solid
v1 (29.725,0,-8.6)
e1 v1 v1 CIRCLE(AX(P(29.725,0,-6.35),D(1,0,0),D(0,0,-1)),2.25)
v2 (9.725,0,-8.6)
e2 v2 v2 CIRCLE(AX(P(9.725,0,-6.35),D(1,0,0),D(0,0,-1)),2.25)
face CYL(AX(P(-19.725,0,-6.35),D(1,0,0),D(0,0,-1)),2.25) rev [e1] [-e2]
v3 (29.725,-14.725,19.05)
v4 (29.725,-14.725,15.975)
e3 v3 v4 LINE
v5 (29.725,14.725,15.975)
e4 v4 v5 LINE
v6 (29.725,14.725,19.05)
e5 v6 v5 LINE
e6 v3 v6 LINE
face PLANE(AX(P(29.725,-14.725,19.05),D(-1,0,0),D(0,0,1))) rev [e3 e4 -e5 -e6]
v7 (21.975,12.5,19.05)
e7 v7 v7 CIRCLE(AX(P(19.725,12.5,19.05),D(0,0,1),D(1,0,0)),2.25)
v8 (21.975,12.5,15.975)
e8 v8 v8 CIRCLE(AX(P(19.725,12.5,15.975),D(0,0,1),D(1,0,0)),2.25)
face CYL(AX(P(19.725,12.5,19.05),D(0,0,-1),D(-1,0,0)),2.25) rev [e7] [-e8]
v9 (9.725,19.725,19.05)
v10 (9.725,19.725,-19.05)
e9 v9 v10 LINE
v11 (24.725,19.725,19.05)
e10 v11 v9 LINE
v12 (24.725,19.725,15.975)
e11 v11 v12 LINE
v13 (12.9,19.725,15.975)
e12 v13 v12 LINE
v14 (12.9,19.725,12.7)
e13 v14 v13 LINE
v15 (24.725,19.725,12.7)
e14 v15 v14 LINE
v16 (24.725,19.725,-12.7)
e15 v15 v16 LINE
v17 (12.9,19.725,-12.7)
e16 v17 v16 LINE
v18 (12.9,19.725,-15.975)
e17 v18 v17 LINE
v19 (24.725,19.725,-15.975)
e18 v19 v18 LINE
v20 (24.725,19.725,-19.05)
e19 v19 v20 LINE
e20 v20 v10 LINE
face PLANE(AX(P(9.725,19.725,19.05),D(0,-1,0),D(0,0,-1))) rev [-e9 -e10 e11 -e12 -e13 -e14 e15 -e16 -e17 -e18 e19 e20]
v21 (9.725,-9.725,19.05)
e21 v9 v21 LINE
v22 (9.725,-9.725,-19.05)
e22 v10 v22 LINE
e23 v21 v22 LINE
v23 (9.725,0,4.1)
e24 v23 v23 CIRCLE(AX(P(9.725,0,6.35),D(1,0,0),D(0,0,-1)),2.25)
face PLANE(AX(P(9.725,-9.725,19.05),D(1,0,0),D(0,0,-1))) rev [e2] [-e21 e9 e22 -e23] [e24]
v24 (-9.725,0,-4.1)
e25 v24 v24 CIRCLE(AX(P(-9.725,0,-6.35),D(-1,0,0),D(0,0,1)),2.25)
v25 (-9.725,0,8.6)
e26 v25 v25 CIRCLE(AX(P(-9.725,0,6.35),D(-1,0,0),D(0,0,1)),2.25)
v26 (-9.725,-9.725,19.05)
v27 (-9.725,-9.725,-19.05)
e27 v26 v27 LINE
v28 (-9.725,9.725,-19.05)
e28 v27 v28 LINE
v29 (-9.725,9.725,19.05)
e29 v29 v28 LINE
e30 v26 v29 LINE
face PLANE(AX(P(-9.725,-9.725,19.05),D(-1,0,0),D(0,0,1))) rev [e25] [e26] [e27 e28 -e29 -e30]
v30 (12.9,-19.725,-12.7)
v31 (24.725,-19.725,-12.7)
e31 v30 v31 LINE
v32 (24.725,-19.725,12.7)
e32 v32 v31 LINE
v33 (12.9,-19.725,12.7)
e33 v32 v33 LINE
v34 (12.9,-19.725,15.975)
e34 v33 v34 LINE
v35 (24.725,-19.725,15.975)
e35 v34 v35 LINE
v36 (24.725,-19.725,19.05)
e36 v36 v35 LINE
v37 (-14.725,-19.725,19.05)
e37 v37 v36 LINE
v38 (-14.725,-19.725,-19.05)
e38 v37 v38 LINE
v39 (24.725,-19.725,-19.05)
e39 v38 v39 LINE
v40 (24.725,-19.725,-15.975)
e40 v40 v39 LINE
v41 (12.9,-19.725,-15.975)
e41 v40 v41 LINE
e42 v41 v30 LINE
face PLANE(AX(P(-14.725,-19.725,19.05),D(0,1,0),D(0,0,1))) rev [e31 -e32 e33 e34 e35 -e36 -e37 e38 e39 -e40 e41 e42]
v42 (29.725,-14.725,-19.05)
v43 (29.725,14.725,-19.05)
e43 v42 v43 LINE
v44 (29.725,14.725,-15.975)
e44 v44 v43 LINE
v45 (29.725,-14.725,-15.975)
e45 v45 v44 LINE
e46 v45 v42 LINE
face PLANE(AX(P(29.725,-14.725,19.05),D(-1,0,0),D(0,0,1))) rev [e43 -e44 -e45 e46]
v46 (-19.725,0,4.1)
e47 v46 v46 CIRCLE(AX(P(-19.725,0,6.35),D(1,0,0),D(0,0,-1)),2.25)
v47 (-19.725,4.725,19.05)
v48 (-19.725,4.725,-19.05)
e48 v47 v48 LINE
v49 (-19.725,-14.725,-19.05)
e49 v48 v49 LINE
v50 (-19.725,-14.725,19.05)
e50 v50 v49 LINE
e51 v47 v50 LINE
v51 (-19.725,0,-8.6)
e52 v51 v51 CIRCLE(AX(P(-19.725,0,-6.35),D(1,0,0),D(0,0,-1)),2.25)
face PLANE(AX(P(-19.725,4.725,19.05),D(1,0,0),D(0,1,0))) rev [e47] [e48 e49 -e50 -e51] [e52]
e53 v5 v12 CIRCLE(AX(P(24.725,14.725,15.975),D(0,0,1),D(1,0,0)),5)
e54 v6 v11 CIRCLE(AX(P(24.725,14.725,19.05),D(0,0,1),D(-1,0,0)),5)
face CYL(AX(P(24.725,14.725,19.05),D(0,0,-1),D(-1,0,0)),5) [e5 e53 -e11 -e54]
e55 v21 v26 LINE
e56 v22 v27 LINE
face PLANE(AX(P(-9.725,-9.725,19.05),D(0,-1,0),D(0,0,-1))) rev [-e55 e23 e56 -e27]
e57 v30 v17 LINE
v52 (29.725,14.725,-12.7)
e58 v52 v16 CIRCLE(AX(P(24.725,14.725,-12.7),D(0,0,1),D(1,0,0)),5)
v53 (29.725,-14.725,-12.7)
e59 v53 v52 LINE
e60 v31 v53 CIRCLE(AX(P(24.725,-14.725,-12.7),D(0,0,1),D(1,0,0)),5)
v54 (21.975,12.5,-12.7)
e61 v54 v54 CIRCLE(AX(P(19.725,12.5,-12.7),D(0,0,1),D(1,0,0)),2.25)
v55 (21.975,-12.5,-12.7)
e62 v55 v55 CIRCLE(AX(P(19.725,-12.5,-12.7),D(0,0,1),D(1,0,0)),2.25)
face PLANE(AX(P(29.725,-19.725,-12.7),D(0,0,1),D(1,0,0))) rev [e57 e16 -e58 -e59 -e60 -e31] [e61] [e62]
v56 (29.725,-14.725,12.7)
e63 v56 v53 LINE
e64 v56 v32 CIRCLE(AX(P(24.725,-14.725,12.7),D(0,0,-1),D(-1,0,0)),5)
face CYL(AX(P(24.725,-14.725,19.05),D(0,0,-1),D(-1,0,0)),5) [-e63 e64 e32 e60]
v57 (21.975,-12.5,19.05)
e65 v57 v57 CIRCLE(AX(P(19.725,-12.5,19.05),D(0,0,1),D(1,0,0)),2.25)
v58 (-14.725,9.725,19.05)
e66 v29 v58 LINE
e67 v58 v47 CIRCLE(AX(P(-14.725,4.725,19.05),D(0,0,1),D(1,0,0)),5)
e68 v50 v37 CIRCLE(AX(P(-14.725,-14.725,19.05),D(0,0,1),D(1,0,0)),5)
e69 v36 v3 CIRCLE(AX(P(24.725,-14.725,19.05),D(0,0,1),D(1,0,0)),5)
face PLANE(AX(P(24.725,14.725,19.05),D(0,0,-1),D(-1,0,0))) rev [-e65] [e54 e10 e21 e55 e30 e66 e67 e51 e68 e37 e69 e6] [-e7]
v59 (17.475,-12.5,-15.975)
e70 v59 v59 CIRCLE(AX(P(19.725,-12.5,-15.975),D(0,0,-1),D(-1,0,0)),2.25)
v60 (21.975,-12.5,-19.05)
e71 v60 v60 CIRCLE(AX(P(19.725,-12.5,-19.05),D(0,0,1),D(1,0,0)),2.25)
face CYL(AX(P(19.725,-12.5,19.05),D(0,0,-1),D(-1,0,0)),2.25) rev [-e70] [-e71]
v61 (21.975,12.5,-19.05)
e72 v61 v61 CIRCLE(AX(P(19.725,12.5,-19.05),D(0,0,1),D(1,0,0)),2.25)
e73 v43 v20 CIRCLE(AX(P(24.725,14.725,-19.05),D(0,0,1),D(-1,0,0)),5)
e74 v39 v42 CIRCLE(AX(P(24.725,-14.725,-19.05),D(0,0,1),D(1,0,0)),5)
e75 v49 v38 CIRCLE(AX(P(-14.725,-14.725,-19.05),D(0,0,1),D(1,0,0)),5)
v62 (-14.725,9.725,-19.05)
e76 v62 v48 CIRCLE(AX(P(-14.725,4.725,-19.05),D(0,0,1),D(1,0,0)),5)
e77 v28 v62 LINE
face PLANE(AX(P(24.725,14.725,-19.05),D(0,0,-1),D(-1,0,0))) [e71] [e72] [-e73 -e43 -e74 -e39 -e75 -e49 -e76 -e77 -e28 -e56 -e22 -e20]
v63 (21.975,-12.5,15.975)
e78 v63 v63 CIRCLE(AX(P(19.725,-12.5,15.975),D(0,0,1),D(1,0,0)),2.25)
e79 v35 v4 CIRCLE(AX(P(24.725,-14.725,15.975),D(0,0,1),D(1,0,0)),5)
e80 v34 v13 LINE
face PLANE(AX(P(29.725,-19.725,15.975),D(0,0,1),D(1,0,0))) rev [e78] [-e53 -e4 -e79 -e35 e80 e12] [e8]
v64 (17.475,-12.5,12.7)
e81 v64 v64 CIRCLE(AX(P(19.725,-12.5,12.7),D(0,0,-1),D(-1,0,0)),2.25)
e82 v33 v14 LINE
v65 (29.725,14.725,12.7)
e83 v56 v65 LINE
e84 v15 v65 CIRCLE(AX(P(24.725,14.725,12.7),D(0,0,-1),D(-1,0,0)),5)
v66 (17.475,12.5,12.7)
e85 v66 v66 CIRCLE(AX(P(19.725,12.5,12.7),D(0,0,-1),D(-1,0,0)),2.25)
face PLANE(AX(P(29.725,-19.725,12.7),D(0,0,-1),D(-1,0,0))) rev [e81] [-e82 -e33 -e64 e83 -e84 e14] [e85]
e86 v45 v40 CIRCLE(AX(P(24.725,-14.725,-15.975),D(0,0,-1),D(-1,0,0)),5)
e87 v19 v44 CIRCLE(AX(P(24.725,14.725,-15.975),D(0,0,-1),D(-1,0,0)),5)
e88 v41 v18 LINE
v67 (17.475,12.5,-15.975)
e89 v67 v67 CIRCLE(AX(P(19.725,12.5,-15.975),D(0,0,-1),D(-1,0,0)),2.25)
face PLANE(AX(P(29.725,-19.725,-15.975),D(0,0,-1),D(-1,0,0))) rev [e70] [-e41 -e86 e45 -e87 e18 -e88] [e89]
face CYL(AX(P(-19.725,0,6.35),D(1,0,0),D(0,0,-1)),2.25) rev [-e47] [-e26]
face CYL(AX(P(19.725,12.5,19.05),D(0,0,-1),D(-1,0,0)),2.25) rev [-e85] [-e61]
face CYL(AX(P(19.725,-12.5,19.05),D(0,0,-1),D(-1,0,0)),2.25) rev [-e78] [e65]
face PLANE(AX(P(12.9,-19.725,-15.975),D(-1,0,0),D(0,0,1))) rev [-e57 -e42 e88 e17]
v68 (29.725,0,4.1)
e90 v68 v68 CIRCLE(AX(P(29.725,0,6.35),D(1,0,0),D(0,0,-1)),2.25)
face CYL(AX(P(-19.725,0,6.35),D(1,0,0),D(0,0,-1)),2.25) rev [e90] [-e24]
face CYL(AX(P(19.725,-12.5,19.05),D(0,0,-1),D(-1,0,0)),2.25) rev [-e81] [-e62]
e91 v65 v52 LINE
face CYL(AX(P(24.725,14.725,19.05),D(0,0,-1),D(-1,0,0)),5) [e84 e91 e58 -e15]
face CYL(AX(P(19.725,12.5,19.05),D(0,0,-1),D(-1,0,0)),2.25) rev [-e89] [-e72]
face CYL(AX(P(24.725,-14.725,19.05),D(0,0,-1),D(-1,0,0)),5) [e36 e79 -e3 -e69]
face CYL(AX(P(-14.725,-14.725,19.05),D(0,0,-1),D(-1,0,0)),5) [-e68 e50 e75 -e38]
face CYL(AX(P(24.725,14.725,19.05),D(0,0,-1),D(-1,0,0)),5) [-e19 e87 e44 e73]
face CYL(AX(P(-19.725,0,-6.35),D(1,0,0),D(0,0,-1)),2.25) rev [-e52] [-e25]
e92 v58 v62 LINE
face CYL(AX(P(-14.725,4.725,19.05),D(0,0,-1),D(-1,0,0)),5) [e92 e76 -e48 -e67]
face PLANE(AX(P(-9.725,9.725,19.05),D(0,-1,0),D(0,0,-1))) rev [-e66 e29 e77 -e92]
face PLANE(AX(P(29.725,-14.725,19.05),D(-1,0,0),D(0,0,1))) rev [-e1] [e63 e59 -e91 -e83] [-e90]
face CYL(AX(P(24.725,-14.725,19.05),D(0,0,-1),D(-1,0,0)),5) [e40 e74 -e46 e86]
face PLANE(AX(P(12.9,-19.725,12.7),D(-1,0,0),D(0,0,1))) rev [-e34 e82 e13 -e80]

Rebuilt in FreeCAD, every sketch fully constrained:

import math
import FreeCAD as App
import Part
import Sketcher

V = App.Vector


def add_polygon(sketch, points):
    """Adds a closed chain of lines whose ends are joined by coincident constraints."""
    first, n = sketch.GeometryCount, len(points)
    for a, b in zip(points, points[1:] + points[:1]):
        sketch.addGeometry(Part.LineSegment(App.Vector(*a, 0), App.Vector(*b, 0)), False)
    for i in range(n):
        sketch.addConstraint(Sketcher.Constraint("Coincident", first + i, 2, first + (i + 1) % n, 1))

doc = App.newDocument("Part")
body = doc.addObject("PartDesign::Body", "Body")

# Sketch on XY plane
sketch1 = body.newObject("Sketcher::SketchObject", "Sketch")
sketch1.AttachmentSupport = (doc.getObject("XY_Plane"), [""])
sketch1.MapMode = "FlatFace"
sketch1.addGeometry([
    Part.LineSegment(V(-9.725, 9.725, 0), V(-14.725, 9.725, 0)),  # 0
    Part.ArcOfCircle(Part.Circle(V(-14.725, 4.725, 0), V(0, 0, 1), 5), math.radians(90), math.radians(180)),  # 1
    Part.LineSegment(V(-19.725, 4.725, 0), V(-19.725, -14.725, 0)),  # 2
    Part.ArcOfCircle(Part.Circle(V(-14.725, -14.725, 0), V(0, 0, 1), 5), math.radians(180), math.radians(270)),  # 3
    Part.LineSegment(V(-14.725, -19.725, 0), V(24.725, -19.725, 0)),  # 4
    Part.ArcOfCircle(Part.Circle(V(24.725, -14.725, 0), V(0, 0, 1), 5), math.radians(-90), math.radians(0)),  # 5
    Part.LineSegment(V(29.725, -14.725, 0), V(29.725, 14.725, 0)),  # 6
    Part.ArcOfCircle(Part.Circle(V(24.725, 14.725, 0), V(0, 0, 1), 5), math.radians(0), math.radians(90)),  # 7
    Part.LineSegment(V(24.725, 19.725, 0), V(9.725, 19.725, 0)),  # 8
    Part.LineSegment(V(9.725, 19.725, 0), V(9.725, -9.725, 0)),  # 9
    Part.LineSegment(V(9.725, -9.725, 0), V(-9.725, -9.725, 0)),  # 10
    Part.LineSegment(V(-9.725, -9.725, 0), V(-9.725, 9.725, 0)),  # 11
    Part.Circle(V(19.725, -12.5, 0), V(0, 0, 1), 2.25),  # 12
    Part.Circle(V(19.725, 12.5, 0), V(0, 0, 1), 2.25),  # 13
], False)
sketch1.addConstraint([
    Sketcher.Constraint("Tangent", 0, 2, 1, 1),
    Sketcher.Constraint("Tangent", 1, 2, 2, 1),
    Sketcher.Constraint("Tangent", 2, 2, 3, 1),
    Sketcher.Constraint("Tangent", 3, 2, 4, 1),
    Sketcher.Constraint("Tangent", 4, 2, 5, 1),
    Sketcher.Constraint("Tangent", 5, 2, 6, 1),
    Sketcher.Constraint("Tangent", 6, 2, 7, 1),
    Sketcher.Constraint("Tangent", 7, 2, 8, 1),
    Sketcher.Constraint("Coincident", 8, 2, 9, 1),
    Sketcher.Constraint("Coincident", 9, 2, 10, 1),
    Sketcher.Constraint("Coincident", 10, 2, 11, 1),
    Sketcher.Constraint("Coincident", 11, 2, 0, 1),
    Sketcher.Constraint("Horizontal", 0),
    Sketcher.Constraint("Vertical", 2),
    Sketcher.Constraint("Horizontal", 4),
    Sketcher.Constraint("Vertical", 6),
    Sketcher.Constraint("Horizontal", 8),
    Sketcher.Constraint("Vertical", 9),
    Sketcher.Constraint("Horizontal", 10),
    Sketcher.Constraint("Vertical", 11),
    Sketcher.Constraint("Equal", 1, 3),
    Sketcher.Constraint("Equal", 3, 5),
    Sketcher.Constraint("Equal", 5, 7),
    Sketcher.Constraint("Equal", 12, 13),
    Sketcher.Constraint("Symmetric", 9, 2, 11, 2, -1, 1),
    Sketcher.Constraint("Symmetric", 12, 3, 13, 3, -1),
    Sketcher.Constraint("Equal", 10, 2),
    Sketcher.Constraint("Equal", 6, 9),
    Sketcher.Constraint("Radius", 1, 5.0),
    Sketcher.Constraint("Diameter", 12, 4.5),
    Sketcher.Constraint("DistanceX", 0, 2, 0, 1, 5.0),
    Sketcher.Constraint("DistanceX", 8, 2, 8, 1, 15.0),
    Sketcher.Constraint("DistanceY", 1, 3, 7, 3, 10.0),
    Sketcher.Constraint("DistanceX", 12, 3, 5, 3, 5.0),
    Sketcher.Constraint("DistanceY", 12, 3, 13, 3, 25.0),
    Sketcher.Constraint("DistanceX", 4, 1, 4, 2, 39.45),
])
pad1 = body.newObject("PartDesign::Pad", "Pad")
pad1.Profile = sketch1
pad1.Length = 38.1
pad1.Midplane = True

# Sketch on XZ plane
sketch2 = body.newObject("Sketcher::SketchObject", "Sketch001")
sketch2.AttachmentSupport = (doc.getObject("XZ_Plane"), [""])
sketch2.MapMode = "FlatFace"
add_polygon(sketch2, [(12.9, -15.975), (12.9, -12.7), (29.725, -12.7), (29.725, -15.975)])  # lines 0-3
add_polygon(sketch2, [(12.9, 12.7), (12.9, 15.975), (29.725, 15.975), (29.725, 12.7)])  # lines 4-7
sketch2.addConstraint([
    Sketcher.Constraint("Vertical", 0),
    Sketcher.Constraint("Horizontal", 1),
    Sketcher.Constraint("Vertical", 2),
    Sketcher.Constraint("Horizontal", 3),
    Sketcher.Constraint("Vertical", 4),
    Sketcher.Constraint("Horizontal", 5),
    Sketcher.Constraint("Vertical", 6),
    Sketcher.Constraint("Horizontal", 7),
    Sketcher.Constraint("Symmetric", 3, 2, 4, 2, -1),
    Sketcher.Constraint("Symmetric", 1, 2, 6, 2, -1),
    Sketcher.Constraint("DistanceX", -1, 1, 0, 2, 12.9),
    Sketcher.Constraint("DistanceY", 0, 2, -1, 1, 12.7),
    Sketcher.Constraint("DistanceX", 1, 1, 1, 2, 16.825),
    Sketcher.Constraint("DistanceY", 0, 1, 0, 2, 3.275),
])
pocket1 = body.newObject("PartDesign::Pocket", "Pocket")
pocket1.Profile = sketch2
pocket1.Type = "ThroughAll"
pocket1.Midplane = True

# Sketch on YZ plane
sketch3 = body.newObject("Sketcher::SketchObject", "Sketch002")
sketch3.AttachmentSupport = (doc.getObject("YZ_Plane"), [""])
sketch3.MapMode = "FlatFace"
sketch3.addGeometry([
    Part.Circle(V(0, 6.35, 0), V(0, 0, 1), 2.25),
    Part.Circle(V(0, -6.35, 0), V(0, 0, 1), 2.25),
], False)
sketch3.addConstraint([
    Sketcher.Constraint("Equal", 0, 1),
    Sketcher.Constraint("Symmetric", 0, 3, 1, 3, -1, 1),
    Sketcher.Constraint("PointOnObject", 0, 3, -2),
    Sketcher.Constraint("Diameter", 0, 4.5),
    Sketcher.Constraint("DistanceY", 1, 3, 0, 3, 12.7),
])
pocket2 = body.newObject("PartDesign::Pocket", "Pocket001")
pocket2.Profile = sketch3
pocket2.Type = "ThroughAll"
pocket2.Midplane = True

doc.recompute()
